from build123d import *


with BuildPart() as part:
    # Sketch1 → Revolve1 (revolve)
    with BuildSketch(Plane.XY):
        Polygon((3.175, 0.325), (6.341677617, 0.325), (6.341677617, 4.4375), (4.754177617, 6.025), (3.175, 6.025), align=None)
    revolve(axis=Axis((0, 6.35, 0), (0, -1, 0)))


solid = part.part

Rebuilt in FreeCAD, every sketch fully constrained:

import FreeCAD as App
import Part
import Sketcher

V = App.Vector
Q = App.Units.Quantity


def add_polygon(sketch, points):
    """Adds a closed chain of lines whose ends are joined by coincident constraints."""
    first, n = sketch.GeometryCount, len(points)
    for a, b in zip(points, points[1:] + points[:1]):
        sketch.addGeometry(Part.LineSegment(App.Vector(*a, 0), App.Vector(*b, 0)), False)
    for i in range(n):
        sketch.addConstraint(Sketcher.Constraint("Coincident", first + i, 2, first + (i + 1) % n, 1))

doc = App.newDocument("Part")
body = doc.addObject("PartDesign::Body", "Body")

# Sketch on XY plane
sketch1 = body.newObject("Sketcher::SketchObject", "Sketch")
sketch1.AttachmentSupport = (doc.getObject("XY_Plane"), [""])
sketch1.MapMode = "FlatFace"
add_polygon(sketch1, [(3.2, 0.3), (6.3, 0.3), (6.3, 4.4), (4.8, 6), (3.2, 6)])  # lines 0-4
sketch1.addConstraint(Sketcher.Constraint("Horizontal", 0))
sketch1.addConstraint(Sketcher.Constraint("Vertical", 1))
sketch1.addConstraint(Sketcher.Constraint("Horizontal", 3))
sketch1.addConstraint(Sketcher.Constraint("Vertical", 4))
sketch1.addConstraint(Sketcher.Constraint("Angle", 2, Q("135 deg")))
sketch1.addConstraint(Sketcher.Constraint("DistanceY", 4, 2, 4, 1, Q("5.7 mm")))
sketch1.addConstraint(Sketcher.Constraint("DistanceY", 1, 1, 1, 2, Q("4.1125 mm")))
sketch1.addConstraint(Sketcher.Constraint("DistanceY", -1, 1, 0, 2, Q("0.325 mm")))
sketch1.addConstraint(Sketcher.Constraint("DistanceX", -1, 1, 3, 2, Q("3.175 mm")))
sketch1.addConstraint(Sketcher.Constraint("DistanceX", 0, 1, 0, 2, Q("3.166678 mm")))
revolution = body.newObject("PartDesign::Revolution", "Revolution")
revolution.Profile = sketch1
revolution.ReferenceAxis = (sketch1, ["V_Axis"])
revolution.Angle = 360

doc.recompute()
